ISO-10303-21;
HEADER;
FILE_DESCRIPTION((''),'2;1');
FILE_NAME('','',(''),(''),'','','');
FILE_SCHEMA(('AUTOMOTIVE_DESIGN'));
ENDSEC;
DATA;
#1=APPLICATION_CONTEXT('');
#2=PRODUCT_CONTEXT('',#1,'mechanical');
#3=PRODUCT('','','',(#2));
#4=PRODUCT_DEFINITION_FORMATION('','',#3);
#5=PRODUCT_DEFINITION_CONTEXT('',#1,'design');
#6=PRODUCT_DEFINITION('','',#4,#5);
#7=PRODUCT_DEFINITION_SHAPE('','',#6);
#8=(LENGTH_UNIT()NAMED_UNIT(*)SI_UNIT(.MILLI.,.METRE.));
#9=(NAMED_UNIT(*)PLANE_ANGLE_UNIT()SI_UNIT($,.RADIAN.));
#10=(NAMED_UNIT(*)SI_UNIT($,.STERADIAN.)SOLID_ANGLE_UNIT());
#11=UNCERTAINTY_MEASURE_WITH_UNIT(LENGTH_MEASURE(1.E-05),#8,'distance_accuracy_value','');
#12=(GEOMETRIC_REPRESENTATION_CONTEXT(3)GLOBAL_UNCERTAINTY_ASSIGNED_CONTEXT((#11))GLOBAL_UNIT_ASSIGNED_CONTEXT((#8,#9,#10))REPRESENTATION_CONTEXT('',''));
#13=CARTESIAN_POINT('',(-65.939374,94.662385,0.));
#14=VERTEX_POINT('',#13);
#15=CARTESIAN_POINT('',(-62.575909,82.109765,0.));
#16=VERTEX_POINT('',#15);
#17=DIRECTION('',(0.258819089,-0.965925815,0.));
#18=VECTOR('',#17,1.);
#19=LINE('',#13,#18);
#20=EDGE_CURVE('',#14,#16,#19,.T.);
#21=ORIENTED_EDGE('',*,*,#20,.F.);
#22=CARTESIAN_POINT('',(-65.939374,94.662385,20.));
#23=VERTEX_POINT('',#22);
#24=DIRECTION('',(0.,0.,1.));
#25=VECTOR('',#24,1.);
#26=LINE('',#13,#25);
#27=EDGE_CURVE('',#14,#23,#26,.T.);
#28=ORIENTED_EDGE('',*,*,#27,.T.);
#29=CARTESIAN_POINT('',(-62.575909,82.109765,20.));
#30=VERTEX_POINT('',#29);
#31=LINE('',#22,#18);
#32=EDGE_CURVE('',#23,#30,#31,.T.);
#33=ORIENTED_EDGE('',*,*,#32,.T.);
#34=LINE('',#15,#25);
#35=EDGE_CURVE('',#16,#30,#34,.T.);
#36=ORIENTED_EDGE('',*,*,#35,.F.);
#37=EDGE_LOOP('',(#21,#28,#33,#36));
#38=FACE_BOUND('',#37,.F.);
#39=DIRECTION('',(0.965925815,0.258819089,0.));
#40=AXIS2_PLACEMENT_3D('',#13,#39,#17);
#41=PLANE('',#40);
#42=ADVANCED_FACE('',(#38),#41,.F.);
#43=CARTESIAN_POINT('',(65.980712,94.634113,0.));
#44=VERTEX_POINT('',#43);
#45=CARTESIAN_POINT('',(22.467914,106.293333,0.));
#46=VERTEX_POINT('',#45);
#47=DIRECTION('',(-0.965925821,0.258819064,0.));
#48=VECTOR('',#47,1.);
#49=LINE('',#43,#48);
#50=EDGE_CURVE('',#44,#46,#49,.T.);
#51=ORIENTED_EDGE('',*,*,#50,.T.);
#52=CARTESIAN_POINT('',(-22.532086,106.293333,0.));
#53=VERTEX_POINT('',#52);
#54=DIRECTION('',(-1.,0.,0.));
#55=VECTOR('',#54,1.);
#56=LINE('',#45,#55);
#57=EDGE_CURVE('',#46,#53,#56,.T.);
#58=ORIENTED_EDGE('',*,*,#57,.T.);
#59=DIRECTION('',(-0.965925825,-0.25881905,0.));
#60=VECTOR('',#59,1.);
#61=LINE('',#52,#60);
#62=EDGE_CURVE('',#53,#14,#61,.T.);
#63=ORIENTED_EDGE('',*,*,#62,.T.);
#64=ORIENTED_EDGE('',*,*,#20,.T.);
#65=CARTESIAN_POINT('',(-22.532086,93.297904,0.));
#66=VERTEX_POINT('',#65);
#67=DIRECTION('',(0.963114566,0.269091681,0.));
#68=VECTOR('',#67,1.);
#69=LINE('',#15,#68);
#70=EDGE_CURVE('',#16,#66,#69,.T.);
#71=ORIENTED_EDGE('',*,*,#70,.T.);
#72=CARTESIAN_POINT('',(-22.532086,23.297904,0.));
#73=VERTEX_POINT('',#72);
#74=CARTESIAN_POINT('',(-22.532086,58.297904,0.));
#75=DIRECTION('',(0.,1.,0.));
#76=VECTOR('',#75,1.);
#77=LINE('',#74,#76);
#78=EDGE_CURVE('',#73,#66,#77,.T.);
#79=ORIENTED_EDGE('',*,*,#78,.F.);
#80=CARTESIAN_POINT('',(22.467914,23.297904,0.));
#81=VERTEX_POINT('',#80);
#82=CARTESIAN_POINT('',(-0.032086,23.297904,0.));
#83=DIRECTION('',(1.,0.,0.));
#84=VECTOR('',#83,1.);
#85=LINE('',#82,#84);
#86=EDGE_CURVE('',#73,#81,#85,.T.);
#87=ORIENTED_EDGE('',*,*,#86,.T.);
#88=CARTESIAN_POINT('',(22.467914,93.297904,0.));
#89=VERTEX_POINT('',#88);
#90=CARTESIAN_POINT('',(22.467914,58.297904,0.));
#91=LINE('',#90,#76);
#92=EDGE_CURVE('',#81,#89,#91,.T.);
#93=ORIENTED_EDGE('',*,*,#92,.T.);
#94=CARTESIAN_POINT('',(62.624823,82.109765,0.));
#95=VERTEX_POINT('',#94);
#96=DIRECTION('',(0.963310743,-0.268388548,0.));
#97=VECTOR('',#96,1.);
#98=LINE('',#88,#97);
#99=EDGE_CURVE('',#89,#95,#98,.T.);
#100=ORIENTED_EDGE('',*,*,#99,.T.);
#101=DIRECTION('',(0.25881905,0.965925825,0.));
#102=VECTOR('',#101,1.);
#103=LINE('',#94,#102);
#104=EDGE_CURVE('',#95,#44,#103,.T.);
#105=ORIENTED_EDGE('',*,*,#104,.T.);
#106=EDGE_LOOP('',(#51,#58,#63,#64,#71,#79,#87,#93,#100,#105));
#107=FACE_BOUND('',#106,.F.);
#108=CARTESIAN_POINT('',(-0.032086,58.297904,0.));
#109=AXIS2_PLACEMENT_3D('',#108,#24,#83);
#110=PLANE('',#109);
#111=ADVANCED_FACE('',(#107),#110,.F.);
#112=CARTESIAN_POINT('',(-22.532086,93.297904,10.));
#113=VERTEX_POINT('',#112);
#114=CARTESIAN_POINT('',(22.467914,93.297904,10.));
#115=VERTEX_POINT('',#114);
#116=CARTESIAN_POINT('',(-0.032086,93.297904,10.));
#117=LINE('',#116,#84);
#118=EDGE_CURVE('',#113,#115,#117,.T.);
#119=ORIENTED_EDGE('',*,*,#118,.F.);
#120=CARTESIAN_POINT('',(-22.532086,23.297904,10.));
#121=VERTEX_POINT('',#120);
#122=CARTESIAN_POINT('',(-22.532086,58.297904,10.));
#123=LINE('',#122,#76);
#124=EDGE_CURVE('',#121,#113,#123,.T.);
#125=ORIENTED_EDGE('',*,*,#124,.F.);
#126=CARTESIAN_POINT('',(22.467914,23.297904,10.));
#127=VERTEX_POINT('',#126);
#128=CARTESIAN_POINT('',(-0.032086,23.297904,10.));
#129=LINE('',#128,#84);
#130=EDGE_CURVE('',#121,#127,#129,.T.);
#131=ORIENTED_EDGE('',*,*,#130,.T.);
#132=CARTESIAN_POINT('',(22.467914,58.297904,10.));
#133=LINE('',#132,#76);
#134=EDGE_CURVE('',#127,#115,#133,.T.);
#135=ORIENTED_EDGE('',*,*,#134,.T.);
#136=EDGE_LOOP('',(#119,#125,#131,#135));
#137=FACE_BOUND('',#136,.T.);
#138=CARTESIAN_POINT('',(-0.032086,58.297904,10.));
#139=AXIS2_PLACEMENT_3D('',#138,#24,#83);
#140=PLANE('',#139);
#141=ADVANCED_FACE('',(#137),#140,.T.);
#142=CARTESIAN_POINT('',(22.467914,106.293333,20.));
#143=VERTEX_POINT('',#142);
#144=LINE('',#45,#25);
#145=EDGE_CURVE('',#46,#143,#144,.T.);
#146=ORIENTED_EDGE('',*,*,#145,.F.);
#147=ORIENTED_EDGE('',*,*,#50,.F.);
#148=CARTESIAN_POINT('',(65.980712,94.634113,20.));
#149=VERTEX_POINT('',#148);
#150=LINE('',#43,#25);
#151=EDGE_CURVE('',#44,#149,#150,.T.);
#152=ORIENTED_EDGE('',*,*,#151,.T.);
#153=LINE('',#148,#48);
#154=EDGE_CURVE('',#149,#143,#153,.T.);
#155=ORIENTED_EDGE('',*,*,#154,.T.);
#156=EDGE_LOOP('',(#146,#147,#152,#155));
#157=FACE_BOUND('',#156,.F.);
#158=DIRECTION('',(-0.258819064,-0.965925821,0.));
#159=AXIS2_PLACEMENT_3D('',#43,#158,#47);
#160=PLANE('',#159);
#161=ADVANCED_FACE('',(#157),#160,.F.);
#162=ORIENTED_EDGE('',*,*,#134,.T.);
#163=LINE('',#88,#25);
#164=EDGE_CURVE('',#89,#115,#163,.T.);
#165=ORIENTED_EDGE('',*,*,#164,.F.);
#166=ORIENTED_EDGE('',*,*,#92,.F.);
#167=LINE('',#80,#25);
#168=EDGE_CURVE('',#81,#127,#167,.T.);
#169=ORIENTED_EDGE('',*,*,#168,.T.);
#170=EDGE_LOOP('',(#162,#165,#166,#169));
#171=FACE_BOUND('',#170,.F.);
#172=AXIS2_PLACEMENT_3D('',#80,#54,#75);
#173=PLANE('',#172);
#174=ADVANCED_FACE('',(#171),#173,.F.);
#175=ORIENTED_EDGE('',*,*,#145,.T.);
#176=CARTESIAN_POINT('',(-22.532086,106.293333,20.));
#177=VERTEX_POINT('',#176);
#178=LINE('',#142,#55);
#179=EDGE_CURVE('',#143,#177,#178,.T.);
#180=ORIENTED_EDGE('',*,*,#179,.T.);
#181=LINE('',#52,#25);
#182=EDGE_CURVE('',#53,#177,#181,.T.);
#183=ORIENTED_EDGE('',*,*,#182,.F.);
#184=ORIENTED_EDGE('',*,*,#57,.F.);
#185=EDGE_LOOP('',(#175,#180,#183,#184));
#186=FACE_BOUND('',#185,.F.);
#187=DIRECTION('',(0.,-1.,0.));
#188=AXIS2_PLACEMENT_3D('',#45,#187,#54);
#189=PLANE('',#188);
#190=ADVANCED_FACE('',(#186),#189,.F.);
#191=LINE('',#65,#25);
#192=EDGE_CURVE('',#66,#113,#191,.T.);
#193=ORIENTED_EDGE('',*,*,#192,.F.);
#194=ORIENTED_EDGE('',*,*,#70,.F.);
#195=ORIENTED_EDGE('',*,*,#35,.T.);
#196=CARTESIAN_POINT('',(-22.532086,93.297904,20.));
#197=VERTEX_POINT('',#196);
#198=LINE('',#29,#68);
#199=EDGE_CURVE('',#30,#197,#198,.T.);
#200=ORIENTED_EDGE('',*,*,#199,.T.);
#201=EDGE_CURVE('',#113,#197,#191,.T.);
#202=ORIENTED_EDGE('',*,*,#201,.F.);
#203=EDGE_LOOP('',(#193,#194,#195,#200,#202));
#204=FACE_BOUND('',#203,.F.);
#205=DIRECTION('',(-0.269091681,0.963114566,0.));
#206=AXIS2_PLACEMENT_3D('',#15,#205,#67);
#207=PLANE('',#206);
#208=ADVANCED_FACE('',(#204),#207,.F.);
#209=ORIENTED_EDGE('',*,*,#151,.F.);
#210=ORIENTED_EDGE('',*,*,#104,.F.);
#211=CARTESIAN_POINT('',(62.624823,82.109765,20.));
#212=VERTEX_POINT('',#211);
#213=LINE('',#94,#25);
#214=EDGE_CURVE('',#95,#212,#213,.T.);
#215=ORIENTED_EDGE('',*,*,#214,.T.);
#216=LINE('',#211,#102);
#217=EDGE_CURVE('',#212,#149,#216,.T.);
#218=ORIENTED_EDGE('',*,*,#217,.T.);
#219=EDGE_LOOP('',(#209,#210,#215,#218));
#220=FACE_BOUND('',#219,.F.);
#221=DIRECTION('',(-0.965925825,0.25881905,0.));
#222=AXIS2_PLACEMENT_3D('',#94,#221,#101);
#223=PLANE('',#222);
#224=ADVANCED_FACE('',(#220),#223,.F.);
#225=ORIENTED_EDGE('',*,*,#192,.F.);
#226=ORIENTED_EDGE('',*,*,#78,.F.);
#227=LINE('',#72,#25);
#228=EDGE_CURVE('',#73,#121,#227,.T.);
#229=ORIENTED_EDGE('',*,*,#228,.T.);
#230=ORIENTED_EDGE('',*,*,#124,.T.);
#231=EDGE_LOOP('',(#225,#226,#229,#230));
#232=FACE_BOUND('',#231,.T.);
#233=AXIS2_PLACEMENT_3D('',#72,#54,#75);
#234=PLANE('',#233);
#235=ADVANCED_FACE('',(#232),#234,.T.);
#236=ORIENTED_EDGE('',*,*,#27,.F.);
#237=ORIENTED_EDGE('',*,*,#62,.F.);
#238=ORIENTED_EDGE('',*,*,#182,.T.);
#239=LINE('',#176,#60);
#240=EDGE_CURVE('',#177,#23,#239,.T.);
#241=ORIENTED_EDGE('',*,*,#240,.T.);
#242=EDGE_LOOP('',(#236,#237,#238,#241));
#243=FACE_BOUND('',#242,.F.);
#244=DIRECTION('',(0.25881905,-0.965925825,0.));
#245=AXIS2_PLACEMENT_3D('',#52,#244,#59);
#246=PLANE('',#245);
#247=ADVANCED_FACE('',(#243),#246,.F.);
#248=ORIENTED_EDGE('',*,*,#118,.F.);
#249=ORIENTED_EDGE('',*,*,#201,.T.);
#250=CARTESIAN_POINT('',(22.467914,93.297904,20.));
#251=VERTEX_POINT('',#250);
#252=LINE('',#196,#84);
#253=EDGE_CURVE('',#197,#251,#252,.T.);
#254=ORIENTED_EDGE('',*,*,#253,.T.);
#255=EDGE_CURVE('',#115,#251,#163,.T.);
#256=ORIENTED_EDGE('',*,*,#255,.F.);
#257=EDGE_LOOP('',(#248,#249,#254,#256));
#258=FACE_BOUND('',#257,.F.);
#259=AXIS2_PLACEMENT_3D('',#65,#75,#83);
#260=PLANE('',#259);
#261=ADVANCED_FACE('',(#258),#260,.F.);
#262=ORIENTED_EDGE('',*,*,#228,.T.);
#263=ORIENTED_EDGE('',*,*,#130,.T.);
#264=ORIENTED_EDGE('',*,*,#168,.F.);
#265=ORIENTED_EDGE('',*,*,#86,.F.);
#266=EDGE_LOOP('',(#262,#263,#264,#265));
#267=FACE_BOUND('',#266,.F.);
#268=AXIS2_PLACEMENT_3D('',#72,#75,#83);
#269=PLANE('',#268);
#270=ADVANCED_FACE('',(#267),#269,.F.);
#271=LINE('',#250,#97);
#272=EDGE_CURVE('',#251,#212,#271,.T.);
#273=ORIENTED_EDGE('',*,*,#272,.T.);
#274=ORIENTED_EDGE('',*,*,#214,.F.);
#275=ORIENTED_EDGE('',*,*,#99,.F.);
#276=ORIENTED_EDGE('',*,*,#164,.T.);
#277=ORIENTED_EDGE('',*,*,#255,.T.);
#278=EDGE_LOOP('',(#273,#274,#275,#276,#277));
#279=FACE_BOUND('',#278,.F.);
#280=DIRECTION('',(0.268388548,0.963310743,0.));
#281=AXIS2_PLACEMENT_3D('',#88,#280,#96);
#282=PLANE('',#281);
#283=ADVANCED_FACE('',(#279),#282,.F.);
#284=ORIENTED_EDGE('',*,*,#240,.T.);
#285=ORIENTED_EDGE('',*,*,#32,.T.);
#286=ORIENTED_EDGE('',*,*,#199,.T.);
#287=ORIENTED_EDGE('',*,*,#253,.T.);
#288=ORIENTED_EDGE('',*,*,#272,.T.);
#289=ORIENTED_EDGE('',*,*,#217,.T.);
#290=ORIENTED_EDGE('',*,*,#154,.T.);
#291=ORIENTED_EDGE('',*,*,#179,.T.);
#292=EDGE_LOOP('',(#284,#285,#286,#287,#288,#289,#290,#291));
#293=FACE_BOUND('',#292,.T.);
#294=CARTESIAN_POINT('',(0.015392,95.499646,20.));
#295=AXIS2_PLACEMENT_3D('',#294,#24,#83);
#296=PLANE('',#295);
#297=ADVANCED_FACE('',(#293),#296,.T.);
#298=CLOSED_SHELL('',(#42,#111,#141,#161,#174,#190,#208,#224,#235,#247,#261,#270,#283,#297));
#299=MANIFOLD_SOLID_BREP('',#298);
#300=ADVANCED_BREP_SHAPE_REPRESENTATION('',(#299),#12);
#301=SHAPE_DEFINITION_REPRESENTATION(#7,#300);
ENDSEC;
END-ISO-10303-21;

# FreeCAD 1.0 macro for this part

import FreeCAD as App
import Part
import Sketcher
Q = App.Units.Quantity


def add_polygon(sketch, points):
    """Adds a closed chain of lines whose ends are joined by coincident constraints."""
    first, n = sketch.GeometryCount, len(points)
    for a, b in zip(points, points[1:] + points[:1]):
        sketch.addGeometry(Part.LineSegment(App.Vector(*a, 0), App.Vector(*b, 0)), False)
    for i in range(n):
        sketch.addConstraint(Sketcher.Constraint("Coincident", first + i, 2, first + (i + 1) % n, 1))

doc = App.newDocument("Part")
body = doc.addObject("PartDesign::Body", "Body")

# Sketch on XY plane
sketch1 = doc.addObject("Sketcher::SketchObject", "Sketch")
body.addObject(sketch1)
sketch1.AttachmentSupport = (doc.XY_Plane, [""])
sketch1.MapMode = "FlatFace"
add_polygon(sketch1, [(-23, 106), (-66, 95), (-63, 82), (-23, 93), (22, 93), (63, 82), (66, 95), (22, 106)])  # lines 0-7
sketch1.addConstraint(Sketcher.Constraint("Horizontal", 3))
sketch1.addConstraint(Sketcher.Constraint("Horizontal", 7))
sketch1.addConstraint(Sketcher.Constraint("Perpendicular", 0, 1))
sketch1.addConstraint(Sketcher.Constraint("Perpendicular", 5, 6))
sketch1.addConstraint(Sketcher.Constraint("Horizontal", 1, 2, 4, 2))
sketch1.addConstraint(Sketcher.Constraint("Vertical", 3, 2, 6, 2))
sketch1.addConstraint(Sketcher.Constraint("Vertical", 2, 2, 7, 2))
sketch1.addConstraint(Sketcher.Constraint("DistanceX", 3, 1, 3, 2, Q("45 mm")))
sketch1.addConstraint(Sketcher.Constraint("Angle", 0, Q("-165 deg")))
sketch1.addConstraint(Sketcher.Constraint("Angle", 5, Q("75 deg")))
sketch1.addConstraint(Sketcher.Constraint("DistanceX", 2, 2, 5, 2, Q("88.512798 mm")))
sketch1.addConstraint(Sketcher.Constraint("Distance", 0, Q("44.938531 mm")))
sketch1.addConstraint(Sketcher.Constraint("Distance", 1, Q("12.995429 mm")))
sketch1.addConstraint(Sketcher.Constraint("Distance", 4, Q("41.68635 mm")))
sketch1.addConstraint(Sketcher.Constraint("DistanceX", 1, 2, -1, 1, Q("62.575909 mm")))
sketch1.addConstraint(Sketcher.Constraint("DistanceY", -1, 1, 0, 2, Q("94.662385 mm")))
pad1 = doc.addObject("PartDesign::Pad", "Pad")
body.addObject(pad1)
pad1.Profile = sketch1
pad1.Length = 20

# Sketch on XY plane
sketch2 = doc.addObject("Sketcher::SketchObject", "Sketch001")
body.addObject(sketch2)
sketch2.AttachmentSupport = (doc.XY_Plane, [""])
sketch2.MapMode = "FlatFace"
add_polygon(sketch2, [(-23, 93), (-23, 23), (22, 23), (22, 93)])  # lines 0-3
sketch2.addConstraint(Sketcher.Constraint("Vertical", 0))
sketch2.addConstraint(Sketcher.Constraint("Horizontal", 1))
sketch2.addConstraint(Sketcher.Constraint("Vertical", 2))
sketch2.addConstraint(Sketcher.Constraint("Horizontal", 3))
sketch2.addConstraint(Sketcher.Constraint("DistanceX", 1, 1, 1, 2, Q("45 mm")))
sketch2.addConstraint(Sketcher.Constraint("DistanceY", 0, 2, 0, 1, Q("70 mm")))
sketch2.addConstraint(Sketcher.Constraint("DistanceX", 0, 2, -1, 1, Q("22.532086 mm")))
sketch2.addConstraint(Sketcher.Constraint("DistanceY", -1, 1, 0, 2, Q("23.297904 mm")))
pad2 = doc.addObject("PartDesign::Pad", "Pad001")
body.addObject(pad2)
pad2.Profile = sketch2
pad2.Length = 10

doc.recompute()
